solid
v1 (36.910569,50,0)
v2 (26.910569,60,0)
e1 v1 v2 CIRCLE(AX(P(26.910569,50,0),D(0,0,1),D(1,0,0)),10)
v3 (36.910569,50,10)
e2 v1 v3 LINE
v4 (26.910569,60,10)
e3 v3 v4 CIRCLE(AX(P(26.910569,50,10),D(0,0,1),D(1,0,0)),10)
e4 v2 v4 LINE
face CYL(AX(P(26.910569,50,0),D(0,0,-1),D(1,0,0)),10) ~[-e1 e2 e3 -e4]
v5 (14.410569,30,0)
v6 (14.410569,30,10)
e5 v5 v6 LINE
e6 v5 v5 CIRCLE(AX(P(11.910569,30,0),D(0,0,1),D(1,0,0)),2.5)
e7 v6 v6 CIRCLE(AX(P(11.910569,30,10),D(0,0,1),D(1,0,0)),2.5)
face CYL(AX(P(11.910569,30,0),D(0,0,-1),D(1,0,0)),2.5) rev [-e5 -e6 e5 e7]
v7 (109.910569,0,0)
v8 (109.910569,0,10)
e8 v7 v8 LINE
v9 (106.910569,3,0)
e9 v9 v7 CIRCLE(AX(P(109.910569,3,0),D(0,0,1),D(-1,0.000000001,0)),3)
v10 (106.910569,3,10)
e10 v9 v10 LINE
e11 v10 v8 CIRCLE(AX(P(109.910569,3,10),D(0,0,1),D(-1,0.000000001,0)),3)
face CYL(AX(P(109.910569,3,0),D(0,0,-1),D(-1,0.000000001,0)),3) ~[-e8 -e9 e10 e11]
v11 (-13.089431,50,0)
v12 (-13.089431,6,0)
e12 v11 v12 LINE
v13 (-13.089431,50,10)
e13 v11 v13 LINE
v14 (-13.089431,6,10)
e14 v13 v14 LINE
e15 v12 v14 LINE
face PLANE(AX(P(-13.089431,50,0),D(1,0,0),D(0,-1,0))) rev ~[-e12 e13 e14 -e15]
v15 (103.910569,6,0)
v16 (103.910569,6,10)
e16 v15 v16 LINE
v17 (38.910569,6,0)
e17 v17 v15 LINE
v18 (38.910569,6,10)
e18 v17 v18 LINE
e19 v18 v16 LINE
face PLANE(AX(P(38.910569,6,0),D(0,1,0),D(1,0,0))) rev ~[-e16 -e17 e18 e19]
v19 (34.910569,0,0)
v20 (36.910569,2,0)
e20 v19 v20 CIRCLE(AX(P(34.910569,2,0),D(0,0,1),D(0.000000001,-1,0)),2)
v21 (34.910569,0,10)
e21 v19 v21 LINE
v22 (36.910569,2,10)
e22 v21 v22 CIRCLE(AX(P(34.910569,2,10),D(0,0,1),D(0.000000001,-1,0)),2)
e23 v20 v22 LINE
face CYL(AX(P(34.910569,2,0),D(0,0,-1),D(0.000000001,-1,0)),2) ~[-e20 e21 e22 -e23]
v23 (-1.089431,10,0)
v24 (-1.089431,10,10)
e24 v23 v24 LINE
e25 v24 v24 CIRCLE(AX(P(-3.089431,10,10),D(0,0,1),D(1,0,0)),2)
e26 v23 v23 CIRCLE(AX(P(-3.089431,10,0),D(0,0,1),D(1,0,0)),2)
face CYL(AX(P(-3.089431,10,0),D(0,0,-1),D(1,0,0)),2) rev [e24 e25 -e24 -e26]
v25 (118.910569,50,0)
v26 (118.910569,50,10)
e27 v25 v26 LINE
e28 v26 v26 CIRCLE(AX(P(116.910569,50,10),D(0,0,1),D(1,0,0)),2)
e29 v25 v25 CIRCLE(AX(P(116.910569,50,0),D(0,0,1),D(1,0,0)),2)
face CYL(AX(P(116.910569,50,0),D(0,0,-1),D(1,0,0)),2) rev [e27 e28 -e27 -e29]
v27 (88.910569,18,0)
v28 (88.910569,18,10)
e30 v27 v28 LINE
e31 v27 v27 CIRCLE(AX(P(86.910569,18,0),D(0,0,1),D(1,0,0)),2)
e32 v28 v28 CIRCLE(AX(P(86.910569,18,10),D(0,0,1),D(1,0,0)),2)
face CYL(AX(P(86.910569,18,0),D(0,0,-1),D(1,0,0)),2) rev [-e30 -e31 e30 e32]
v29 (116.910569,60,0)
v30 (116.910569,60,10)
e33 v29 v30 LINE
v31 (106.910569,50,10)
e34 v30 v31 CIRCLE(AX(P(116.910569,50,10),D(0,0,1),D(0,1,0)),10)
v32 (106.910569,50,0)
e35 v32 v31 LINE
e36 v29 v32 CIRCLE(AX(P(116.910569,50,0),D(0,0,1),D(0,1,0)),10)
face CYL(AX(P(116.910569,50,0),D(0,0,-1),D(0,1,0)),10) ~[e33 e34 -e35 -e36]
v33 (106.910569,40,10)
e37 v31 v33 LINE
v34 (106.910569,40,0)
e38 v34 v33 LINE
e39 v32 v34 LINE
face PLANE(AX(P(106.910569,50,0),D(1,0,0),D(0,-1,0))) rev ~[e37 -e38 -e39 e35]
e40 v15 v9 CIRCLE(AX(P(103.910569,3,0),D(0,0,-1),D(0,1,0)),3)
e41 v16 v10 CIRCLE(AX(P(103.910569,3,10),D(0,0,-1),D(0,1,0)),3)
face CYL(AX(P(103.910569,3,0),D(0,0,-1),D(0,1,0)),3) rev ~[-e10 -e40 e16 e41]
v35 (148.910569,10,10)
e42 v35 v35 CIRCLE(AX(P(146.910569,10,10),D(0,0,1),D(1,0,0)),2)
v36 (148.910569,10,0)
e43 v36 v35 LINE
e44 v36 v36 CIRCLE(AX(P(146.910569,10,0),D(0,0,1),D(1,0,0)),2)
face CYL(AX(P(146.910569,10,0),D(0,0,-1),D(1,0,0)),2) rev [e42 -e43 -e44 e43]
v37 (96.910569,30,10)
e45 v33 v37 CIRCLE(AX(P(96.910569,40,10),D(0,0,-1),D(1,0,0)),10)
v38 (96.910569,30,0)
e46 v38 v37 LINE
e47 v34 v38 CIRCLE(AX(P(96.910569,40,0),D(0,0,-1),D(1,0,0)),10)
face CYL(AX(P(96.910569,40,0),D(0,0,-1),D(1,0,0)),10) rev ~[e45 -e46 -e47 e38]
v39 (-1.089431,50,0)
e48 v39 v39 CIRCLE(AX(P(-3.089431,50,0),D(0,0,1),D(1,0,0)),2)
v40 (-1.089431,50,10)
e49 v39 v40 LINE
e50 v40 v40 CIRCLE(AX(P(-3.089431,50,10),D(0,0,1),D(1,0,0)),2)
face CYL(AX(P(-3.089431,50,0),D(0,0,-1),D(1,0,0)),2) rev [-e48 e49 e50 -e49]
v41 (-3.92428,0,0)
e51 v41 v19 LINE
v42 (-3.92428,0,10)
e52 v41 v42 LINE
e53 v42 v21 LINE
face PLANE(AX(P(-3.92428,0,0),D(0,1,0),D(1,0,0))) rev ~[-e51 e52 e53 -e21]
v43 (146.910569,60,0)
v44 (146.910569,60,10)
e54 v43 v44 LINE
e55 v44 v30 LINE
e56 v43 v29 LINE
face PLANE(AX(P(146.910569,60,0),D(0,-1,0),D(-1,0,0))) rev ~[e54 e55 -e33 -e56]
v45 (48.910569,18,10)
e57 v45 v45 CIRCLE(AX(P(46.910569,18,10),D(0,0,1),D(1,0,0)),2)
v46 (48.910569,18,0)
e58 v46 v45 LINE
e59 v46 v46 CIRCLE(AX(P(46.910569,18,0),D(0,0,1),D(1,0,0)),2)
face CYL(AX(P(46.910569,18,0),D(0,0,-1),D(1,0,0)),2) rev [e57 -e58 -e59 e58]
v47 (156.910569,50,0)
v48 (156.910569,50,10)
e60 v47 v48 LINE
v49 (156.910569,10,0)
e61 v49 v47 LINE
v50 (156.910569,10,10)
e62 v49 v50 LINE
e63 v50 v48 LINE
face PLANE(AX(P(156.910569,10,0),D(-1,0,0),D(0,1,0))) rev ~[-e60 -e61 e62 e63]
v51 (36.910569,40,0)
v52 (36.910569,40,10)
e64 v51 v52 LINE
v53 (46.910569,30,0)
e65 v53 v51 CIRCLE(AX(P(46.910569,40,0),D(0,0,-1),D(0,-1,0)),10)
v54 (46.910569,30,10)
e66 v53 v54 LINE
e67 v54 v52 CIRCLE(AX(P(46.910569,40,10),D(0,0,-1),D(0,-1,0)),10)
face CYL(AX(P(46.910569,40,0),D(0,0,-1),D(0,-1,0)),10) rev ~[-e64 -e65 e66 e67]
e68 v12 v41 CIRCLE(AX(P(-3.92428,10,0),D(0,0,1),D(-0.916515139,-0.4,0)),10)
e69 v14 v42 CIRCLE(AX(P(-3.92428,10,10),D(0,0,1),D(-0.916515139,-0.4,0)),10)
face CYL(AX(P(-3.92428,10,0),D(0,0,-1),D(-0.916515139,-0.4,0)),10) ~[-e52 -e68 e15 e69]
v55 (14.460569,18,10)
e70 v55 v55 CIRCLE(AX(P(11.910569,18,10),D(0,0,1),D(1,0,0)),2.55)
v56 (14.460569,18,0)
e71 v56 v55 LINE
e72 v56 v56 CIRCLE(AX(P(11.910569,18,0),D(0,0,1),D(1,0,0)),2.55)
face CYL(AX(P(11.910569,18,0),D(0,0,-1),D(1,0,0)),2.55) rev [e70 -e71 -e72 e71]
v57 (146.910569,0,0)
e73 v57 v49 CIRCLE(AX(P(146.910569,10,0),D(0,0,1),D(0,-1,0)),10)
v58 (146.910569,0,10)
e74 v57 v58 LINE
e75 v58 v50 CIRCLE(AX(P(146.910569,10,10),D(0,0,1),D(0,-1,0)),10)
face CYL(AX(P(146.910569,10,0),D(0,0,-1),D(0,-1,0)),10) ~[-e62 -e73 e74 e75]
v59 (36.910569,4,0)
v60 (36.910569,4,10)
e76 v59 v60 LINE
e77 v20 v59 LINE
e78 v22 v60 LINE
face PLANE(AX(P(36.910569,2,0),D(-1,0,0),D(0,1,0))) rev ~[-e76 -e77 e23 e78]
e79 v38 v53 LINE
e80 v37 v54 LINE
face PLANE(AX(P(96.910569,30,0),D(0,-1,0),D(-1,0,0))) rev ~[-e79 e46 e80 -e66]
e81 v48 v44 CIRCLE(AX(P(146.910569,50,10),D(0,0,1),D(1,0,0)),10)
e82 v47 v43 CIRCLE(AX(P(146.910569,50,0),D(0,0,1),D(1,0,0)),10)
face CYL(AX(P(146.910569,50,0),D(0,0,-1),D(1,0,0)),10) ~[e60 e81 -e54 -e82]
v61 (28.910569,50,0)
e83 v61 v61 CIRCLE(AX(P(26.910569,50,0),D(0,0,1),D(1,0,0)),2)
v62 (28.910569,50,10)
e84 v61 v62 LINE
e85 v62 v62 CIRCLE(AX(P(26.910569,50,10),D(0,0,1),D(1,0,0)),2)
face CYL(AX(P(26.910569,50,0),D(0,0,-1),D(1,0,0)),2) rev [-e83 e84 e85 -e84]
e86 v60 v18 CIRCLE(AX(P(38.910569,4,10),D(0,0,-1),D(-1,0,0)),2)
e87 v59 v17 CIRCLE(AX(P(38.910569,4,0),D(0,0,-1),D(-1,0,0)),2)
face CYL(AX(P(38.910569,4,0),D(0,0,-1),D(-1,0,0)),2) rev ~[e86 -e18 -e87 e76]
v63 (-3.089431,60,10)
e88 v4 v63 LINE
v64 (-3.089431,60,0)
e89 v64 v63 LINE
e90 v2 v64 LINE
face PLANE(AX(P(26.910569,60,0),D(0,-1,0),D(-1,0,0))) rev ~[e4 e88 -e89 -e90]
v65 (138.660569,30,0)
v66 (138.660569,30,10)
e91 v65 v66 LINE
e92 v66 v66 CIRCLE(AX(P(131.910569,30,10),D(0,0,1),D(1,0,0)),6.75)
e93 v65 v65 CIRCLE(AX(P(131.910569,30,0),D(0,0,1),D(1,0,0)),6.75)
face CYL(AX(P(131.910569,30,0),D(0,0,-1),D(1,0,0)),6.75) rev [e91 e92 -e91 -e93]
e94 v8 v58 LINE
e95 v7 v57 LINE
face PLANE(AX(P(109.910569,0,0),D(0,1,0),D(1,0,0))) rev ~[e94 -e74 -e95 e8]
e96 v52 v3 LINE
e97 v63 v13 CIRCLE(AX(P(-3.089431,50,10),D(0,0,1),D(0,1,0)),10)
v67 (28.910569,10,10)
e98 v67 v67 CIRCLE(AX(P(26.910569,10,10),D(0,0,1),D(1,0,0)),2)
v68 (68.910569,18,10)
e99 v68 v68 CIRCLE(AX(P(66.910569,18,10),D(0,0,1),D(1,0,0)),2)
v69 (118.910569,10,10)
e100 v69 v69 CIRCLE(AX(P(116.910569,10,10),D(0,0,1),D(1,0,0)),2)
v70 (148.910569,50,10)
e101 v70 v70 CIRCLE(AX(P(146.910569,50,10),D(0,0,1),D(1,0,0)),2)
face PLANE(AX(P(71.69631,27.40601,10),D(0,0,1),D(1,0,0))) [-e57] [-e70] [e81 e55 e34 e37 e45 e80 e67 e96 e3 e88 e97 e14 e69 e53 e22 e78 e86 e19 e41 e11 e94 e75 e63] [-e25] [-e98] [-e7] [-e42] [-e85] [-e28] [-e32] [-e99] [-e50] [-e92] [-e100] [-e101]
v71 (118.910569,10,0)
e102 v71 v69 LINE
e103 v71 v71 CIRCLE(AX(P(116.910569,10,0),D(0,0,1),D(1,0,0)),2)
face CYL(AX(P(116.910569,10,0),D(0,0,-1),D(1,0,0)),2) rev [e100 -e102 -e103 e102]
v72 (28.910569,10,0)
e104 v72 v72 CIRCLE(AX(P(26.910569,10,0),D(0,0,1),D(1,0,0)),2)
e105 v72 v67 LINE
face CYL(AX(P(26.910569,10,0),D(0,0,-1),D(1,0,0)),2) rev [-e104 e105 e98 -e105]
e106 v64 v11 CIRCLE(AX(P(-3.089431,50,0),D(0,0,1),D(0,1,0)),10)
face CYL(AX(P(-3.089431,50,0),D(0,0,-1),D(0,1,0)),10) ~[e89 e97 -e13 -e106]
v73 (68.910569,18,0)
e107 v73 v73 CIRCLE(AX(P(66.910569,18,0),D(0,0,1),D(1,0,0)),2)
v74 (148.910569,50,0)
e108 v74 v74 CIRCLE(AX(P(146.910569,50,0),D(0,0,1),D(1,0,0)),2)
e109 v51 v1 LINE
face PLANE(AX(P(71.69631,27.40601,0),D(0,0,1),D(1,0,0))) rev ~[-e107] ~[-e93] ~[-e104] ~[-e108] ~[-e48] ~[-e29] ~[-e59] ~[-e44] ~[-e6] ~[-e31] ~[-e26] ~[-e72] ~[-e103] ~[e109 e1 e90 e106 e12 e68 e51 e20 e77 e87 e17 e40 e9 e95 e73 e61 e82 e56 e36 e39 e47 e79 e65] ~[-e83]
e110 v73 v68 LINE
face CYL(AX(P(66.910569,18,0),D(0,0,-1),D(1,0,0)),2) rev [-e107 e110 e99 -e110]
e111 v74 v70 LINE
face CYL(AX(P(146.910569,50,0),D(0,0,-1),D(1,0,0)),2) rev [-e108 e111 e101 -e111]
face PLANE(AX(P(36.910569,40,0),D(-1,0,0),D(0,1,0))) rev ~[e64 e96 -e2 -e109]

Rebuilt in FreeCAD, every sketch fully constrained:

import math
import FreeCAD as App
import Part
import Sketcher
from FreeCAD import Vector

doc = App.newDocument("Part")
body = doc.addObject("PartDesign::Body", "Body")

# Sketch on XY plane
sketch1 = body.newObject("Sketcher::SketchObject", "Sketch")
sketch1.AttachmentSupport = (doc.getObject("XY_Plane"), [""])
sketch1.MapMode = "FlatFace"
sketch1.addGeometry(Part.LineSegment(Vector(-13.089431, 50, 0), Vector(-13.089431, 6, 0)), False)
sketch1.addGeometry(Part.ArcOfCircle(Part.Circle(Vector(-3.92428, 10, 0), Vector(0, 0, 1), 10), math.radians(-156.421822), math.radians(-90)), False)
sketch1.addGeometry(Part.LineSegment(Vector(-3.92428, 0, 0), Vector(34.910569, 0, 0)), False)
sketch1.addGeometry(Part.ArcOfCircle(Part.Circle(Vector(34.910569, 2, 0), Vector(0, 0, 1), 2), math.radians(-90), math.radians(0)), False)
sketch1.addGeometry(Part.LineSegment(Vector(36.910569, 2, 0), Vector(36.910569, 4, 0)), False)
sketch1.addGeometry(Part.ArcOfCircle(Part.Circle(Vector(38.910569, 4, 0), Vector(0, 0, 1), 2), math.radians(90), math.radians(180)), False)
sketch1.addGeometry(Part.LineSegment(Vector(38.910569, 6, 0), Vector(103.910569, 6, 0)), False)
sketch1.addGeometry(Part.ArcOfCircle(Part.Circle(Vector(103.910569, 3, 0), Vector(0, 0, 1), 3), math.radians(0), math.radians(90)), False)
sketch1.addGeometry(Part.ArcOfCircle(Part.Circle(Vector(109.910569, 3, 0), Vector(0, 0, 1), 3), math.radians(180), math.radians(270)), False)
sketch1.addGeometry(Part.LineSegment(Vector(109.910569, 0, 0), Vector(146.910569, 0, 0)), False)
sketch1.addGeometry(Part.ArcOfCircle(Part.Circle(Vector(146.910569, 10, 0), Vector(0, 0, 1), 10), math.radians(-90), math.radians(0)), False)
sketch1.addGeometry(Part.LineSegment(Vector(156.910569, 10, 0), Vector(156.910569, 50, 0)), False)
sketch1.addGeometry(Part.ArcOfCircle(Part.Circle(Vector(146.910569, 50, 0), Vector(0, 0, 1), 10), math.radians(0), math.radians(90)), False)
sketch1.addGeometry(Part.LineSegment(Vector(146.910569, 60, 0), Vector(116.910569, 60, 0)), False)
sketch1.addGeometry(Part.ArcOfCircle(Part.Circle(Vector(116.910569, 50, 0), Vector(0, 0, 1), 10), math.radians(90), math.radians(180)), False)
sketch1.addGeometry(Part.LineSegment(Vector(106.910569, 50, 0), Vector(106.910569, 40, 0)), False)
sketch1.addGeometry(Part.ArcOfCircle(Part.Circle(Vector(96.910569, 40, 0), Vector(0, 0, 1), 10), math.radians(-90), math.radians(0)), False)
sketch1.addGeometry(Part.LineSegment(Vector(96.910569, 30, 0), Vector(46.910569, 30, 0)), False)
sketch1.addGeometry(Part.ArcOfCircle(Part.Circle(Vector(46.910569, 40, 0), Vector(0, 0, 1), 10), math.radians(180), math.radians(270)), False)
sketch1.addGeometry(Part.LineSegment(Vector(36.910569, 40, 0), Vector(36.910569, 50, 0)), False)
sketch1.addGeometry(Part.ArcOfCircle(Part.Circle(Vector(26.910569, 50, 0), Vector(0, 0, 1), 10), math.radians(0), math.radians(90)), False)
sketch1.addGeometry(Part.LineSegment(Vector(26.910569, 60, 0), Vector(-3.089431, 60, 0)), False)
sketch1.addGeometry(Part.ArcOfCircle(Part.Circle(Vector(-3.089431, 50, 0), Vector(0, 0, 1), 10), math.radians(90), math.radians(180)), False)
sketch1.addGeometry(Part.Circle(Vector(-3.089431, 10, 0), Vector(0, 0, 1), 2), False)
sketch1.addGeometry(Part.Circle(Vector(26.910569, 10, 0), Vector(0, 0, 1), 2), False)
sketch1.addGeometry(Part.Circle(Vector(11.910569, 18, 0), Vector(0, 0, 1), 2.55), False)
sketch1.addGeometry(Part.Circle(Vector(46.910569, 18, 0), Vector(0, 0, 1), 2), False)
sketch1.addGeometry(Part.Circle(Vector(66.910569, 18, 0), Vector(0, 0, 1), 2), False)
sketch1.addGeometry(Part.Circle(Vector(86.910569, 18, 0), Vector(0, 0, 1), 2), False)
sketch1.addGeometry(Part.Circle(Vector(116.910569, 10, 0), Vector(0, 0, 1), 2), False)
sketch1.addGeometry(Part.Circle(Vector(146.910569, 10, 0), Vector(0, 0, 1), 2), False)
sketch1.addGeometry(Part.Circle(Vector(11.910569, 30, 0), Vector(0, 0, 1), 2.5), False)
sketch1.addGeometry(Part.Circle(Vector(-3.089431, 50, 0), Vector(0, 0, 1), 2), False)
sketch1.addGeometry(Part.Circle(Vector(26.910569, 50, 0), Vector(0, 0, 1), 2), False)
sketch1.addGeometry(Part.Circle(Vector(131.910569, 30, 0), Vector(0, 0, 1), 6.75), False)
sketch1.addGeometry(Part.Circle(Vector(116.910569, 50, 0), Vector(0, 0, 1), 2), False)
sketch1.addGeometry(Part.Circle(Vector(146.910569, 50, 0), Vector(0, 0, 1), 2), False)
sketch1.addConstraint(Sketcher.Constraint("Coincident", 0, 2, 1, 1))
sketch1.addConstraint(Sketcher.Constraint("Tangent", 1, 2, 2, 1))
sketch1.addConstraint(Sketcher.Constraint("Tangent", 2, 2, 3, 1))
sketch1.addConstraint(Sketcher.Constraint("Tangent", 3, 2, 4, 1))
sketch1.addConstraint(Sketcher.Constraint("Tangent", 4, 2, 5, 2))
sketch1.addConstraint(Sketcher.Constraint("Tangent", 5, 1, 6, 1))
sketch1.addConstraint(Sketcher.Constraint("Tangent", 6, 2, 7, 2))
sketch1.addConstraint(Sketcher.Constraint("Tangent", 7, 1, 8, 1))
sketch1.addConstraint(Sketcher.Constraint("Tangent", 8, 2, 9, 1))
sketch1.addConstraint(Sketcher.Constraint("Tangent", 9, 2, 10, 1))
sketch1.addConstraint(Sketcher.Constraint("Tangent", 10, 2, 11, 1))
sketch1.addConstraint(Sketcher.Constraint("Tangent", 11, 2, 12, 1))
sketch1.addConstraint(Sketcher.Constraint("Tangent", 12, 2, 13, 1))
sketch1.addConstraint(Sketcher.Constraint("Tangent", 13, 2, 14, 1))
sketch1.addConstraint(Sketcher.Constraint("Tangent", 14, 2, 15, 1))
sketch1.addConstraint(Sketcher.Constraint("Tangent", 15, 2, 16, 2))
sketch1.addConstraint(Sketcher.Constraint("Tangent", 16, 1, 17, 1))
sketch1.addConstraint(Sketcher.Constraint("Tangent", 17, 2, 18, 2))
sketch1.addConstraint(Sketcher.Constraint("Tangent", 18, 1, 19, 1))
sketch1.addConstraint(Sketcher.Constraint("Tangent", 19, 2, 20, 1))
sketch1.addConstraint(Sketcher.Constraint("Tangent", 20, 2, 21, 1))
sketch1.addConstraint(Sketcher.Constraint("Tangent", 21, 2, 22, 1))
sketch1.addConstraint(Sketcher.Constraint("Tangent", 22, 2, 0, 1))
sketch1.addConstraint(Sketcher.Constraint("Vertical", 0))
sketch1.addConstraint(Sketcher.Constraint("Horizontal", 2))
sketch1.addConstraint(Sketcher.Constraint("Vertical", 4))
sketch1.addConstraint(Sketcher.Constraint("Horizontal", 6))
sketch1.addConstraint(Sketcher.Constraint("Horizontal", 9))
sketch1.addConstraint(Sketcher.Constraint("Vertical", 11))
sketch1.addConstraint(Sketcher.Constraint("Horizontal", 13))
sketch1.addConstraint(Sketcher.Constraint("Vertical", 15))
sketch1.addConstraint(Sketcher.Constraint("Horizontal", 17))
sketch1.addConstraint(Sketcher.Constraint("Vertical", 19))
sketch1.addConstraint(Sketcher.Constraint("Horizontal", 21))
sketch1.addConstraint(Sketcher.Constraint("Coincident", 30, 3, 10, 3))
sketch1.addConstraint(Sketcher.Constraint("Coincident", 32, 3, 22, 3))
sketch1.addConstraint(Sketcher.Constraint("Coincident", 33, 3, 20, 3))
sketch1.addConstraint(Sketcher.Constraint("Coincident", 35, 3, 14, 3))
sketch1.addConstraint(Sketcher.Constraint("Coincident", 36, 3, 12, 3))
sketch1.addConstraint(Sketcher.Constraint("Equal", 3, 5))
sketch1.addConstraint(Sketcher.Constraint("Equal", 7, 8))
sketch1.addConstraint(Sketcher.Constraint("Equal", 1, 10))
sketch1.addConstraint(Sketcher.Constraint("Equal", 10, 12))
sketch1.addConstraint(Sketcher.Constraint("Equal", 12, 14))
sketch1.addConstraint(Sketcher.Constraint("Equal", 14, 16))
sketch1.addConstraint(Sketcher.Constraint("Equal", 16, 18))
sketch1.addConstraint(Sketcher.Constraint("Equal", 18, 20))
sketch1.addConstraint(Sketcher.Constraint("Equal", 20, 22))
sketch1.addConstraint(Sketcher.Constraint("Equal", 5, 23))
sketch1.addConstraint(Sketcher.Constraint("Equal", 23, 24))
sketch1.addConstraint(Sketcher.Constraint("Equal", 24, 26))
sketch1.addConstraint(Sketcher.Constraint("Equal", 26, 27))
sketch1.addConstraint(Sketcher.Constraint("Equal", 27, 28))
sketch1.addConstraint(Sketcher.Constraint("Equal", 28, 29))
sketch1.addConstraint(Sketcher.Constraint("Equal", 29, 30))
sketch1.addConstraint(Sketcher.Constraint("Equal", 30, 32))
sketch1.addConstraint(Sketcher.Constraint("Equal", 32, 33))
sketch1.addConstraint(Sketcher.Constraint("Equal", 33, 35))
sketch1.addConstraint(Sketcher.Constraint("Equal", 35, 36))
sketch1.addConstraint(Sketcher.Constraint("PointOnObject", 1, 2, -1))
sketch1.addConstraint(Sketcher.Constraint("PointOnObject", 8, 2, -1))
sketch1.addConstraint(Sketcher.Constraint("Horizontal", 7, 3, 8, 3))
sketch1.addConstraint(Sketcher.Constraint("Horizontal", 14, 3, 20, 3))
sketch1.addConstraint(Sketcher.Constraint("Horizontal", 10, 3, 23, 3))
sketch1.addConstraint(Sketcher.Constraint("Horizontal", 23, 3, 24, 3))
sketch1.addConstraint(Sketcher.Constraint("Horizontal", 25, 3, 26, 3))
sketch1.addConstraint(Sketcher.Constraint("Horizontal", 26, 3, 27, 3))
sketch1.addConstraint(Sketcher.Constraint("Horizontal", 27, 3, 28, 3))
sketch1.addConstraint(Sketcher.Constraint("Horizontal", 24, 3, 29, 3))
sketch1.addConstraint(Sketcher.Constraint("Horizontal", 31, 3, 34, 3))
sketch1.addConstraint(Sketcher.Constraint("Horizontal", 0, 2, 5, 1))
sketch1.addConstraint(Sketcher.Constraint("Horizontal", 34, 3, 16, 1))
sketch1.addConstraint(Sketcher.Constraint("Vertical", 22, 3, 23, 3))
sketch1.addConstraint(Sketcher.Constraint("Vertical", 20, 3, 24, 3))
sketch1.addConstraint(Sketcher.Constraint("Vertical", 18, 3, 26, 3))
sketch1.addConstraint(Sketcher.Constraint("Vertical", 14, 3, 29, 3))
sketch1.addConstraint(Sketcher.Constraint("Vertical", 25, 3, 31, 3))
sketch1.addConstraint(Sketcher.Constraint("Vertical", 7, 1, 14, 2))
sketch1.addConstraint(Sketcher.Constraint("Vertical", 4, 2, 18, 1))
sketch1.addConstraint(Sketcher.Constraint("Equal", 13, 21))
sketch1.addConstraint(Sketcher.Constraint("Diameter", 23, 4.0))
sketch1.addConstraint(Sketcher.Constraint("Diameter", 31, 5.0))
sketch1.addConstraint(Sketcher.Constraint("Radius", 1, 10.0))
sketch1.addConstraint(Sketcher.Constraint("Radius", 7, 3.0))
sketch1.addConstraint(Sketcher.Constraint("Diameter", 25, 5.1))
sketch1.addConstraint(Sketcher.Constraint("Diameter", 34, 13.5))
sketch1.addConstraint(Sketcher.Constraint("DistanceX", 6, 1, 6, 2, 65.0))
sketch1.addConstraint(Sketcher.Constraint("DistanceX", 9, 1, 9, 2, 37.0))
sketch1.addConstraint(Sketcher.Constraint("DistanceY", 0, 2, 0, 1, 44.0))
sketch1.addConstraint(Sketcher.Constraint("DistanceY", 15, 2, 15, 1, 10.0))
sketch1.addConstraint(Sketcher.Constraint("DistanceY", -1, 1, 25, 3, 18.0))
sketch1.addConstraint(Sketcher.Constraint("DistanceX", 23, 3, 25, 3, 15.0))
sketch1.addConstraint(Sketcher.Constraint("DistanceX", 26, 3, 27, 3, 20.0))
sketch1.addConstraint(Sketcher.Constraint("DistanceX", 27, 3, 28, 3, 20.0))
sketch1.addConstraint(Sketcher.Constraint("DistanceX", 34, 3, 10, 3, 15.0))
sketch1.addConstraint(Sketcher.Constraint("DistanceX", 1, 3, -1, 1, 3.92428))
pad1 = body.newObject("PartDesign::Pad", "Pad")
pad1.Profile = sketch1
pad1.Length = 10

doc.recompute()
